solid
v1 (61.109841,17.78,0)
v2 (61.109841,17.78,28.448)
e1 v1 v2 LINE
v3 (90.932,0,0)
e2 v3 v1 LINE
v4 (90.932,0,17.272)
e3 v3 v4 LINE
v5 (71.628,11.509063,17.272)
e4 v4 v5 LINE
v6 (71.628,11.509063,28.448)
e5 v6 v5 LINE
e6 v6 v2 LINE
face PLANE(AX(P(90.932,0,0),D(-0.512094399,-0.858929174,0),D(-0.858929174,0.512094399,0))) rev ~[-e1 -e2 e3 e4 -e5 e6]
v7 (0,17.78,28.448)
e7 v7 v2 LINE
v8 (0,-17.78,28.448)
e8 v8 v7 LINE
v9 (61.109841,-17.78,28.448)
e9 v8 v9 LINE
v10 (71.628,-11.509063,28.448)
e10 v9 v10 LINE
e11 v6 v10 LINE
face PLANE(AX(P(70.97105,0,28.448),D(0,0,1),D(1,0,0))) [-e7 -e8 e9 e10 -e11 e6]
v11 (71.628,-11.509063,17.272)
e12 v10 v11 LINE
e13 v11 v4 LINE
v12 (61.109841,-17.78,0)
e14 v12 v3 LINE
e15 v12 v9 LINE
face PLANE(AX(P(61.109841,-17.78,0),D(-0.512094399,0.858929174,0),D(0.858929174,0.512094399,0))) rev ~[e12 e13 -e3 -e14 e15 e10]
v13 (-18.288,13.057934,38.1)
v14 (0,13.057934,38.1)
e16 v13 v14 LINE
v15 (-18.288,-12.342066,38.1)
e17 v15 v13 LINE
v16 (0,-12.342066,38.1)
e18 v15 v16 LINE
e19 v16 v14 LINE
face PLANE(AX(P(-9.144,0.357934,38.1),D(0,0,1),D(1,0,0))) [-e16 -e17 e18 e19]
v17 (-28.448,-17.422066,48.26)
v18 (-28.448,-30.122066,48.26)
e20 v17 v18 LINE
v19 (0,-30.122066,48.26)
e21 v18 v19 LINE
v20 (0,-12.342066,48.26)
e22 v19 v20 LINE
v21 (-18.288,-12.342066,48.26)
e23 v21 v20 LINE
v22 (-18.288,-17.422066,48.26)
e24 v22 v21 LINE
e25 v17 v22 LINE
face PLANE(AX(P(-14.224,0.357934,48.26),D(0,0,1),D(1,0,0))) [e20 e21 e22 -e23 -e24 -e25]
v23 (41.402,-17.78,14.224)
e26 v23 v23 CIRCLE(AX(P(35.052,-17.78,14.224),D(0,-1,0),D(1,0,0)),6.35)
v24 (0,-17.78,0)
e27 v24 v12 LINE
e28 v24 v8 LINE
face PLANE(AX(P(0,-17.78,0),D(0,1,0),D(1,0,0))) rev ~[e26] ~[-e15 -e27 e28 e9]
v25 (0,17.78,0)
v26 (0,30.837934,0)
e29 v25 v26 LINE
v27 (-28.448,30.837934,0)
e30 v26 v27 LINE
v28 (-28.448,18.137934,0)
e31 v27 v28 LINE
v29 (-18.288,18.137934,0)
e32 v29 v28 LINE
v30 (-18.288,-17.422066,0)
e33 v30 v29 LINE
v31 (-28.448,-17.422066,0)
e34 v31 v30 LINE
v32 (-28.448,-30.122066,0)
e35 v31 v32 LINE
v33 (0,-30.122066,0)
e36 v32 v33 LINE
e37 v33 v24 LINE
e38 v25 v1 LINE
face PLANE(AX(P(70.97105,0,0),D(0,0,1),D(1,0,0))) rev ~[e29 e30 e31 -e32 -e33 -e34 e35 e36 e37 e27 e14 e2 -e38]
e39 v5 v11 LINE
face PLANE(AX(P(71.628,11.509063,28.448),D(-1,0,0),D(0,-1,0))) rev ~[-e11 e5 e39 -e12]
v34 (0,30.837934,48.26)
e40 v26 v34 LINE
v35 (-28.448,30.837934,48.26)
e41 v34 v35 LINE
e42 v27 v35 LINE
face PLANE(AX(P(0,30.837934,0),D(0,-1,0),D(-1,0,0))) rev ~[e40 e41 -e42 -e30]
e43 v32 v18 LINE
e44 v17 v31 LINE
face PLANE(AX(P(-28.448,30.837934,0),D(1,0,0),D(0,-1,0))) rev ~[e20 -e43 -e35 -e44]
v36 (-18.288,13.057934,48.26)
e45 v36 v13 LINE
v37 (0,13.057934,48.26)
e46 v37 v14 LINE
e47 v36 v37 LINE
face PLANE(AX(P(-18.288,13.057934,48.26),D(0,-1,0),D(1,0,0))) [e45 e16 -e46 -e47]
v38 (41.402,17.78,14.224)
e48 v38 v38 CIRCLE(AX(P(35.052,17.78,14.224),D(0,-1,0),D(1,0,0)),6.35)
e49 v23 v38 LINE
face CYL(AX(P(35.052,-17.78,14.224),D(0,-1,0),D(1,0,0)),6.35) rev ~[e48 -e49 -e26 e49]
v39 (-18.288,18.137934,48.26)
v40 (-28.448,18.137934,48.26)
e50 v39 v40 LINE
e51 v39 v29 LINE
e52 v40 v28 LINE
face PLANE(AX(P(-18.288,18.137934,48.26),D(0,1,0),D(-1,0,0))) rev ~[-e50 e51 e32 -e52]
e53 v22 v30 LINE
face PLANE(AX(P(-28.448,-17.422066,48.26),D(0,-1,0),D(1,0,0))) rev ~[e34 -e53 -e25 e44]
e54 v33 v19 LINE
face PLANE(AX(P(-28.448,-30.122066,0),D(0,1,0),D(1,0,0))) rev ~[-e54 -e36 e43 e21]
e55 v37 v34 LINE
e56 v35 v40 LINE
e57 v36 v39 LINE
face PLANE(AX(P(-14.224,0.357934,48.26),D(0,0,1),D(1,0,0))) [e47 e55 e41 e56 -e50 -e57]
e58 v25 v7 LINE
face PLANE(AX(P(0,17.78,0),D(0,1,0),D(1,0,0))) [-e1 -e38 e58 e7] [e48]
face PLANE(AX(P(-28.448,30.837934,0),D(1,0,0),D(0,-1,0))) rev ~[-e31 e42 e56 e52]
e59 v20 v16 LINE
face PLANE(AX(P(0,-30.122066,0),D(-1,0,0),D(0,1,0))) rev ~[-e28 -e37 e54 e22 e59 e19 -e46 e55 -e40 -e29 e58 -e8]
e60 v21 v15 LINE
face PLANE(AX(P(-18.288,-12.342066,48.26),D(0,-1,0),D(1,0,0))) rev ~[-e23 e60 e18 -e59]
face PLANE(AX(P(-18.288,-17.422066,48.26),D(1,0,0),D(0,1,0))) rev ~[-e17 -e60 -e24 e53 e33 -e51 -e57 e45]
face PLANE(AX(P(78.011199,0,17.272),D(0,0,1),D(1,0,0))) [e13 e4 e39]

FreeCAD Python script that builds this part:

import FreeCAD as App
import Part
import Sketcher
Q = App.Units.Quantity


def add_polygon(sketch, points):
    """Adds a closed chain of lines whose ends are joined by coincident constraints."""
    first, n = sketch.GeometryCount, len(points)
    for a, b in zip(points, points[1:] + points[:1]):
        sketch.addGeometry(Part.LineSegment(App.Vector(*a, 0), App.Vector(*b, 0)), False)
    for i in range(n):
        sketch.addConstraint(Sketcher.Constraint("Coincident", first + i, 2, first + (i + 1) % n, 1))

doc = App.newDocument("Part")
body = doc.addObject("PartDesign::Body", "Body")

sketch1 = body.newObject("Sketcher::SketchObject", "Sketch")
sketch1.AttachmentSupport = (doc.getObject("XY_Plane"), [""])
sketch1.MapMode = "FlatFace"
add_polygon(sketch1, [(-28, 31), (-28, -30), (0, -30), (0, 31)])
sketch1.addConstraint(Sketcher.Constraint("Vertical", 0))
sketch1.addConstraint(Sketcher.Constraint("Horizontal", 1))
sketch1.addConstraint(Sketcher.Constraint("Vertical", 2))
sketch1.addConstraint(Sketcher.Constraint("Horizontal", 3))
sketch1.addConstraint(Sketcher.Constraint("PointOnObject", 1, 2, -2))
sketch1.addConstraint(Sketcher.Constraint("DistanceY", 0, 2, 0, 1, Q("2.4 in")))
sketch1.addConstraint(Sketcher.Constraint("DistanceX", 1, 1, 1, 2, Q("1.12 in")))
sketch1.addConstraint(Sketcher.Constraint("DistanceY", 0, 2, -1, 1, Q("30.122066 mm")))
pad1 = body.newObject("PartDesign::Pad", "Pad")
pad1.Profile = sketch1
pad1.Length = Q("1.9 in")

sketch2 = body.newObject("Sketcher::SketchObject", "Sketch001")
sketch2.AttachmentSupport = (doc.getObject("XY_Plane"), [""])
sketch2.MapMode = "FlatFace"
add_polygon(sketch2, [(0, 18), (0, -18), (61, -18), (61, 18)])
sketch2.addConstraint(Sketcher.Constraint("Vertical", 0))
sketch2.addConstraint(Sketcher.Constraint("Horizontal", 1))
sketch2.addConstraint(Sketcher.Constraint("Vertical", 2))
sketch2.addConstraint(Sketcher.Constraint("Horizontal", 3))
sketch2.addConstraint(Sketcher.Constraint("Symmetric", 0, 2, 3, 2, -1, 1))
sketch2.addConstraint(Sketcher.Constraint("DistanceY", 0, 2, 0, 1, Q("1.4 in")))
sketch2.addConstraint(Sketcher.Constraint("DistanceX", 1, 1, 1, 2, Q("61.109841 mm")))
pad2 = body.newObject("PartDesign::Pad", "Pad001")
pad2.Profile = sketch2
pad2.Length = Q("1.12 in")

sketch3 = body.newObject("Sketcher::SketchObject", "Sketch002")
sketch3.AttachmentSupport = (doc.getObject("XY_Plane"), [""])
sketch3.MapMode = "FlatFace"
add_polygon(sketch3, [(61, 18), (61, -18), (91, 0)])
sketch3.addConstraint(Sketcher.Constraint("Vertical", 0))
sketch3.addConstraint(Sketcher.Constraint("PointOnObject", 1, 2, -1))
sketch3.addConstraint(Sketcher.Constraint("Equal", 1, 2))
sketch3.addConstraint(Sketcher.Constraint("DistanceY", 0, 2, 0, 1, Q("1.4 in")))
sketch3.addConstraint(Sketcher.Constraint("DistanceX", -1, 1, 1, 2, Q("3.58 in")))
sketch3.addConstraint(Sketcher.Constraint("Distance", 1, Q("34.720161 mm")))
pad3 = body.newObject("PartDesign::Pad", "Pad002")
pad3.Profile = sketch3
pad3.Length = Q("1.12 in")

sketch4 = body.newObject("Sketcher::SketchObject", "Sketch003")
sketch4.AttachmentSupport = (doc.getObject("XY_Plane"), [""])
sketch4.MapMode = "FlatFace"
sketch4.AttachmentOffset = App.Placement(App.Vector(0, 0, 1.9 * 25.4), App.Rotation())
add_polygon(sketch4, [(-28, 18), (-28, -17), (-18, -17), (-18, 18)])
sketch4.addConstraint(Sketcher.Constraint("Vertical", 0))
sketch4.addConstraint(Sketcher.Constraint("Horizontal", 1))
sketch4.addConstraint(Sketcher.Constraint("Vertical", 2))
sketch4.addConstraint(Sketcher.Constraint("Horizontal", 3))
sketch4.addConstraint(Sketcher.Constraint("DistanceX", 1, 1, 1, 2, Q("0.4 in")))
sketch4.addConstraint(Sketcher.Constraint("DistanceY", 0, 2, 0, 1, Q("1.4 in")))
sketch4.addConstraint(Sketcher.Constraint("DistanceX", 0, 2, -1, 1, Q("1.12 in")))
sketch4.addConstraint(Sketcher.Constraint("DistanceY", 0, 2, -1, 1, Q("17.422066 mm")))
pocket1 = body.newObject("PartDesign::Pocket", "Pocket")
pocket1.Profile = sketch4
pocket1.Length = Q("1.9 in")

sketch5 = body.newObject("Sketcher::SketchObject", "Sketch004")
sketch5.AttachmentSupport = (doc.getObject("XY_Plane"), [""])
sketch5.MapMode = "FlatFace"
sketch5.AttachmentOffset = App.Placement(App.Vector(0, 0, 1.9 * 25.4), App.Rotation())
add_polygon(sketch5, [(-18, 13), (-18, -12), (0, -12), (0, 13)])
sketch5.addConstraint(Sketcher.Constraint("Vertical", 0))
sketch5.addConstraint(Sketcher.Constraint("Horizontal", 1))
sketch5.addConstraint(Sketcher.Constraint("Vertical", 2))
sketch5.addConstraint(Sketcher.Constraint("Horizontal", 3))
sketch5.addConstraint(Sketcher.Constraint("PointOnObject", 1, 2, -2))
sketch5.addConstraint(Sketcher.Constraint("DistanceY", 0, 2, 0, 1, Q("1 in")))
sketch5.addConstraint(Sketcher.Constraint("DistanceX", 1, 1, 1, 2, Q("0.72 in")))
sketch5.addConstraint(Sketcher.Constraint("DistanceY", 0, 2, -1, 1, Q("12.342066 mm")))
pocket2 = body.newObject("PartDesign::Pocket", "Pocket001")
pocket2.Profile = sketch5
pocket2.Length = Q("0.4 in")

sketch6 = body.newObject("Sketcher::SketchObject", "Sketch005")
sketch6.AttachmentSupport = (doc.getObject("XY_Plane"), [""])
sketch6.MapMode = "FlatFace"
sketch6.AttachmentOffset = App.Placement(App.Vector(0, 0, 1.12 * 25.4), App.Rotation())
add_polygon(sketch6, [(91, 0), (72, 12), (72, -12)])
sketch6.addConstraint(Sketcher.Constraint("Vertical", 1))
sketch6.addConstraint(Sketcher.Constraint("PointOnObject", 2, 2, -1))
sketch6.addConstraint(Sketcher.Constraint("Equal", 0, 2))
sketch6.addConstraint(Sketcher.Constraint("DistanceX", -1, 1, 0, 2, Q("2.82 in")))
sketch6.addConstraint(Sketcher.Constraint("DistanceX", -1, 1, 2, 2, Q("3.58 in")))
sketch6.addConstraint(Sketcher.Constraint("DistanceY", 1, 2, 1, 1, Q("23.018127 mm")))
pocket3 = body.newObject("PartDesign::Pocket", "Pocket002")
pocket3.Profile = sketch6
pocket3.Length = Q("0.44 in")

sketch7 = body.newObject("Sketcher::SketchObject", "Sketch006")
sketch7.AttachmentSupport = (doc.getObject("XZ_Plane"), [""])
sketch7.MapMode = "FlatFace"
sketch7.AttachmentOffset = App.Placement(App.Vector(0, 0, 0.7 * 25.4), App.Rotation())
sketch7.addGeometry(Part.Circle(App.Vector(35, 14, 0), App.Vector(0, 0, 1), 6), False)
sketch7.addConstraint(Sketcher.Constraint("Diameter", 0, Q("0.5 in")))
sketch7.addConstraint(Sketcher.Constraint("DistanceX", -1, 1, 0, 3, Q("1.38 in")))
sketch7.addConstraint(Sketcher.Constraint("DistanceY", -1, 1, 0, 3, Q("0.56 in")))
pocket4 = body.newObject("PartDesign::Pocket", "Pocket003")
pocket4.Profile = sketch7
pocket4.Length = Q("1.4 in")

doc.recompute()
